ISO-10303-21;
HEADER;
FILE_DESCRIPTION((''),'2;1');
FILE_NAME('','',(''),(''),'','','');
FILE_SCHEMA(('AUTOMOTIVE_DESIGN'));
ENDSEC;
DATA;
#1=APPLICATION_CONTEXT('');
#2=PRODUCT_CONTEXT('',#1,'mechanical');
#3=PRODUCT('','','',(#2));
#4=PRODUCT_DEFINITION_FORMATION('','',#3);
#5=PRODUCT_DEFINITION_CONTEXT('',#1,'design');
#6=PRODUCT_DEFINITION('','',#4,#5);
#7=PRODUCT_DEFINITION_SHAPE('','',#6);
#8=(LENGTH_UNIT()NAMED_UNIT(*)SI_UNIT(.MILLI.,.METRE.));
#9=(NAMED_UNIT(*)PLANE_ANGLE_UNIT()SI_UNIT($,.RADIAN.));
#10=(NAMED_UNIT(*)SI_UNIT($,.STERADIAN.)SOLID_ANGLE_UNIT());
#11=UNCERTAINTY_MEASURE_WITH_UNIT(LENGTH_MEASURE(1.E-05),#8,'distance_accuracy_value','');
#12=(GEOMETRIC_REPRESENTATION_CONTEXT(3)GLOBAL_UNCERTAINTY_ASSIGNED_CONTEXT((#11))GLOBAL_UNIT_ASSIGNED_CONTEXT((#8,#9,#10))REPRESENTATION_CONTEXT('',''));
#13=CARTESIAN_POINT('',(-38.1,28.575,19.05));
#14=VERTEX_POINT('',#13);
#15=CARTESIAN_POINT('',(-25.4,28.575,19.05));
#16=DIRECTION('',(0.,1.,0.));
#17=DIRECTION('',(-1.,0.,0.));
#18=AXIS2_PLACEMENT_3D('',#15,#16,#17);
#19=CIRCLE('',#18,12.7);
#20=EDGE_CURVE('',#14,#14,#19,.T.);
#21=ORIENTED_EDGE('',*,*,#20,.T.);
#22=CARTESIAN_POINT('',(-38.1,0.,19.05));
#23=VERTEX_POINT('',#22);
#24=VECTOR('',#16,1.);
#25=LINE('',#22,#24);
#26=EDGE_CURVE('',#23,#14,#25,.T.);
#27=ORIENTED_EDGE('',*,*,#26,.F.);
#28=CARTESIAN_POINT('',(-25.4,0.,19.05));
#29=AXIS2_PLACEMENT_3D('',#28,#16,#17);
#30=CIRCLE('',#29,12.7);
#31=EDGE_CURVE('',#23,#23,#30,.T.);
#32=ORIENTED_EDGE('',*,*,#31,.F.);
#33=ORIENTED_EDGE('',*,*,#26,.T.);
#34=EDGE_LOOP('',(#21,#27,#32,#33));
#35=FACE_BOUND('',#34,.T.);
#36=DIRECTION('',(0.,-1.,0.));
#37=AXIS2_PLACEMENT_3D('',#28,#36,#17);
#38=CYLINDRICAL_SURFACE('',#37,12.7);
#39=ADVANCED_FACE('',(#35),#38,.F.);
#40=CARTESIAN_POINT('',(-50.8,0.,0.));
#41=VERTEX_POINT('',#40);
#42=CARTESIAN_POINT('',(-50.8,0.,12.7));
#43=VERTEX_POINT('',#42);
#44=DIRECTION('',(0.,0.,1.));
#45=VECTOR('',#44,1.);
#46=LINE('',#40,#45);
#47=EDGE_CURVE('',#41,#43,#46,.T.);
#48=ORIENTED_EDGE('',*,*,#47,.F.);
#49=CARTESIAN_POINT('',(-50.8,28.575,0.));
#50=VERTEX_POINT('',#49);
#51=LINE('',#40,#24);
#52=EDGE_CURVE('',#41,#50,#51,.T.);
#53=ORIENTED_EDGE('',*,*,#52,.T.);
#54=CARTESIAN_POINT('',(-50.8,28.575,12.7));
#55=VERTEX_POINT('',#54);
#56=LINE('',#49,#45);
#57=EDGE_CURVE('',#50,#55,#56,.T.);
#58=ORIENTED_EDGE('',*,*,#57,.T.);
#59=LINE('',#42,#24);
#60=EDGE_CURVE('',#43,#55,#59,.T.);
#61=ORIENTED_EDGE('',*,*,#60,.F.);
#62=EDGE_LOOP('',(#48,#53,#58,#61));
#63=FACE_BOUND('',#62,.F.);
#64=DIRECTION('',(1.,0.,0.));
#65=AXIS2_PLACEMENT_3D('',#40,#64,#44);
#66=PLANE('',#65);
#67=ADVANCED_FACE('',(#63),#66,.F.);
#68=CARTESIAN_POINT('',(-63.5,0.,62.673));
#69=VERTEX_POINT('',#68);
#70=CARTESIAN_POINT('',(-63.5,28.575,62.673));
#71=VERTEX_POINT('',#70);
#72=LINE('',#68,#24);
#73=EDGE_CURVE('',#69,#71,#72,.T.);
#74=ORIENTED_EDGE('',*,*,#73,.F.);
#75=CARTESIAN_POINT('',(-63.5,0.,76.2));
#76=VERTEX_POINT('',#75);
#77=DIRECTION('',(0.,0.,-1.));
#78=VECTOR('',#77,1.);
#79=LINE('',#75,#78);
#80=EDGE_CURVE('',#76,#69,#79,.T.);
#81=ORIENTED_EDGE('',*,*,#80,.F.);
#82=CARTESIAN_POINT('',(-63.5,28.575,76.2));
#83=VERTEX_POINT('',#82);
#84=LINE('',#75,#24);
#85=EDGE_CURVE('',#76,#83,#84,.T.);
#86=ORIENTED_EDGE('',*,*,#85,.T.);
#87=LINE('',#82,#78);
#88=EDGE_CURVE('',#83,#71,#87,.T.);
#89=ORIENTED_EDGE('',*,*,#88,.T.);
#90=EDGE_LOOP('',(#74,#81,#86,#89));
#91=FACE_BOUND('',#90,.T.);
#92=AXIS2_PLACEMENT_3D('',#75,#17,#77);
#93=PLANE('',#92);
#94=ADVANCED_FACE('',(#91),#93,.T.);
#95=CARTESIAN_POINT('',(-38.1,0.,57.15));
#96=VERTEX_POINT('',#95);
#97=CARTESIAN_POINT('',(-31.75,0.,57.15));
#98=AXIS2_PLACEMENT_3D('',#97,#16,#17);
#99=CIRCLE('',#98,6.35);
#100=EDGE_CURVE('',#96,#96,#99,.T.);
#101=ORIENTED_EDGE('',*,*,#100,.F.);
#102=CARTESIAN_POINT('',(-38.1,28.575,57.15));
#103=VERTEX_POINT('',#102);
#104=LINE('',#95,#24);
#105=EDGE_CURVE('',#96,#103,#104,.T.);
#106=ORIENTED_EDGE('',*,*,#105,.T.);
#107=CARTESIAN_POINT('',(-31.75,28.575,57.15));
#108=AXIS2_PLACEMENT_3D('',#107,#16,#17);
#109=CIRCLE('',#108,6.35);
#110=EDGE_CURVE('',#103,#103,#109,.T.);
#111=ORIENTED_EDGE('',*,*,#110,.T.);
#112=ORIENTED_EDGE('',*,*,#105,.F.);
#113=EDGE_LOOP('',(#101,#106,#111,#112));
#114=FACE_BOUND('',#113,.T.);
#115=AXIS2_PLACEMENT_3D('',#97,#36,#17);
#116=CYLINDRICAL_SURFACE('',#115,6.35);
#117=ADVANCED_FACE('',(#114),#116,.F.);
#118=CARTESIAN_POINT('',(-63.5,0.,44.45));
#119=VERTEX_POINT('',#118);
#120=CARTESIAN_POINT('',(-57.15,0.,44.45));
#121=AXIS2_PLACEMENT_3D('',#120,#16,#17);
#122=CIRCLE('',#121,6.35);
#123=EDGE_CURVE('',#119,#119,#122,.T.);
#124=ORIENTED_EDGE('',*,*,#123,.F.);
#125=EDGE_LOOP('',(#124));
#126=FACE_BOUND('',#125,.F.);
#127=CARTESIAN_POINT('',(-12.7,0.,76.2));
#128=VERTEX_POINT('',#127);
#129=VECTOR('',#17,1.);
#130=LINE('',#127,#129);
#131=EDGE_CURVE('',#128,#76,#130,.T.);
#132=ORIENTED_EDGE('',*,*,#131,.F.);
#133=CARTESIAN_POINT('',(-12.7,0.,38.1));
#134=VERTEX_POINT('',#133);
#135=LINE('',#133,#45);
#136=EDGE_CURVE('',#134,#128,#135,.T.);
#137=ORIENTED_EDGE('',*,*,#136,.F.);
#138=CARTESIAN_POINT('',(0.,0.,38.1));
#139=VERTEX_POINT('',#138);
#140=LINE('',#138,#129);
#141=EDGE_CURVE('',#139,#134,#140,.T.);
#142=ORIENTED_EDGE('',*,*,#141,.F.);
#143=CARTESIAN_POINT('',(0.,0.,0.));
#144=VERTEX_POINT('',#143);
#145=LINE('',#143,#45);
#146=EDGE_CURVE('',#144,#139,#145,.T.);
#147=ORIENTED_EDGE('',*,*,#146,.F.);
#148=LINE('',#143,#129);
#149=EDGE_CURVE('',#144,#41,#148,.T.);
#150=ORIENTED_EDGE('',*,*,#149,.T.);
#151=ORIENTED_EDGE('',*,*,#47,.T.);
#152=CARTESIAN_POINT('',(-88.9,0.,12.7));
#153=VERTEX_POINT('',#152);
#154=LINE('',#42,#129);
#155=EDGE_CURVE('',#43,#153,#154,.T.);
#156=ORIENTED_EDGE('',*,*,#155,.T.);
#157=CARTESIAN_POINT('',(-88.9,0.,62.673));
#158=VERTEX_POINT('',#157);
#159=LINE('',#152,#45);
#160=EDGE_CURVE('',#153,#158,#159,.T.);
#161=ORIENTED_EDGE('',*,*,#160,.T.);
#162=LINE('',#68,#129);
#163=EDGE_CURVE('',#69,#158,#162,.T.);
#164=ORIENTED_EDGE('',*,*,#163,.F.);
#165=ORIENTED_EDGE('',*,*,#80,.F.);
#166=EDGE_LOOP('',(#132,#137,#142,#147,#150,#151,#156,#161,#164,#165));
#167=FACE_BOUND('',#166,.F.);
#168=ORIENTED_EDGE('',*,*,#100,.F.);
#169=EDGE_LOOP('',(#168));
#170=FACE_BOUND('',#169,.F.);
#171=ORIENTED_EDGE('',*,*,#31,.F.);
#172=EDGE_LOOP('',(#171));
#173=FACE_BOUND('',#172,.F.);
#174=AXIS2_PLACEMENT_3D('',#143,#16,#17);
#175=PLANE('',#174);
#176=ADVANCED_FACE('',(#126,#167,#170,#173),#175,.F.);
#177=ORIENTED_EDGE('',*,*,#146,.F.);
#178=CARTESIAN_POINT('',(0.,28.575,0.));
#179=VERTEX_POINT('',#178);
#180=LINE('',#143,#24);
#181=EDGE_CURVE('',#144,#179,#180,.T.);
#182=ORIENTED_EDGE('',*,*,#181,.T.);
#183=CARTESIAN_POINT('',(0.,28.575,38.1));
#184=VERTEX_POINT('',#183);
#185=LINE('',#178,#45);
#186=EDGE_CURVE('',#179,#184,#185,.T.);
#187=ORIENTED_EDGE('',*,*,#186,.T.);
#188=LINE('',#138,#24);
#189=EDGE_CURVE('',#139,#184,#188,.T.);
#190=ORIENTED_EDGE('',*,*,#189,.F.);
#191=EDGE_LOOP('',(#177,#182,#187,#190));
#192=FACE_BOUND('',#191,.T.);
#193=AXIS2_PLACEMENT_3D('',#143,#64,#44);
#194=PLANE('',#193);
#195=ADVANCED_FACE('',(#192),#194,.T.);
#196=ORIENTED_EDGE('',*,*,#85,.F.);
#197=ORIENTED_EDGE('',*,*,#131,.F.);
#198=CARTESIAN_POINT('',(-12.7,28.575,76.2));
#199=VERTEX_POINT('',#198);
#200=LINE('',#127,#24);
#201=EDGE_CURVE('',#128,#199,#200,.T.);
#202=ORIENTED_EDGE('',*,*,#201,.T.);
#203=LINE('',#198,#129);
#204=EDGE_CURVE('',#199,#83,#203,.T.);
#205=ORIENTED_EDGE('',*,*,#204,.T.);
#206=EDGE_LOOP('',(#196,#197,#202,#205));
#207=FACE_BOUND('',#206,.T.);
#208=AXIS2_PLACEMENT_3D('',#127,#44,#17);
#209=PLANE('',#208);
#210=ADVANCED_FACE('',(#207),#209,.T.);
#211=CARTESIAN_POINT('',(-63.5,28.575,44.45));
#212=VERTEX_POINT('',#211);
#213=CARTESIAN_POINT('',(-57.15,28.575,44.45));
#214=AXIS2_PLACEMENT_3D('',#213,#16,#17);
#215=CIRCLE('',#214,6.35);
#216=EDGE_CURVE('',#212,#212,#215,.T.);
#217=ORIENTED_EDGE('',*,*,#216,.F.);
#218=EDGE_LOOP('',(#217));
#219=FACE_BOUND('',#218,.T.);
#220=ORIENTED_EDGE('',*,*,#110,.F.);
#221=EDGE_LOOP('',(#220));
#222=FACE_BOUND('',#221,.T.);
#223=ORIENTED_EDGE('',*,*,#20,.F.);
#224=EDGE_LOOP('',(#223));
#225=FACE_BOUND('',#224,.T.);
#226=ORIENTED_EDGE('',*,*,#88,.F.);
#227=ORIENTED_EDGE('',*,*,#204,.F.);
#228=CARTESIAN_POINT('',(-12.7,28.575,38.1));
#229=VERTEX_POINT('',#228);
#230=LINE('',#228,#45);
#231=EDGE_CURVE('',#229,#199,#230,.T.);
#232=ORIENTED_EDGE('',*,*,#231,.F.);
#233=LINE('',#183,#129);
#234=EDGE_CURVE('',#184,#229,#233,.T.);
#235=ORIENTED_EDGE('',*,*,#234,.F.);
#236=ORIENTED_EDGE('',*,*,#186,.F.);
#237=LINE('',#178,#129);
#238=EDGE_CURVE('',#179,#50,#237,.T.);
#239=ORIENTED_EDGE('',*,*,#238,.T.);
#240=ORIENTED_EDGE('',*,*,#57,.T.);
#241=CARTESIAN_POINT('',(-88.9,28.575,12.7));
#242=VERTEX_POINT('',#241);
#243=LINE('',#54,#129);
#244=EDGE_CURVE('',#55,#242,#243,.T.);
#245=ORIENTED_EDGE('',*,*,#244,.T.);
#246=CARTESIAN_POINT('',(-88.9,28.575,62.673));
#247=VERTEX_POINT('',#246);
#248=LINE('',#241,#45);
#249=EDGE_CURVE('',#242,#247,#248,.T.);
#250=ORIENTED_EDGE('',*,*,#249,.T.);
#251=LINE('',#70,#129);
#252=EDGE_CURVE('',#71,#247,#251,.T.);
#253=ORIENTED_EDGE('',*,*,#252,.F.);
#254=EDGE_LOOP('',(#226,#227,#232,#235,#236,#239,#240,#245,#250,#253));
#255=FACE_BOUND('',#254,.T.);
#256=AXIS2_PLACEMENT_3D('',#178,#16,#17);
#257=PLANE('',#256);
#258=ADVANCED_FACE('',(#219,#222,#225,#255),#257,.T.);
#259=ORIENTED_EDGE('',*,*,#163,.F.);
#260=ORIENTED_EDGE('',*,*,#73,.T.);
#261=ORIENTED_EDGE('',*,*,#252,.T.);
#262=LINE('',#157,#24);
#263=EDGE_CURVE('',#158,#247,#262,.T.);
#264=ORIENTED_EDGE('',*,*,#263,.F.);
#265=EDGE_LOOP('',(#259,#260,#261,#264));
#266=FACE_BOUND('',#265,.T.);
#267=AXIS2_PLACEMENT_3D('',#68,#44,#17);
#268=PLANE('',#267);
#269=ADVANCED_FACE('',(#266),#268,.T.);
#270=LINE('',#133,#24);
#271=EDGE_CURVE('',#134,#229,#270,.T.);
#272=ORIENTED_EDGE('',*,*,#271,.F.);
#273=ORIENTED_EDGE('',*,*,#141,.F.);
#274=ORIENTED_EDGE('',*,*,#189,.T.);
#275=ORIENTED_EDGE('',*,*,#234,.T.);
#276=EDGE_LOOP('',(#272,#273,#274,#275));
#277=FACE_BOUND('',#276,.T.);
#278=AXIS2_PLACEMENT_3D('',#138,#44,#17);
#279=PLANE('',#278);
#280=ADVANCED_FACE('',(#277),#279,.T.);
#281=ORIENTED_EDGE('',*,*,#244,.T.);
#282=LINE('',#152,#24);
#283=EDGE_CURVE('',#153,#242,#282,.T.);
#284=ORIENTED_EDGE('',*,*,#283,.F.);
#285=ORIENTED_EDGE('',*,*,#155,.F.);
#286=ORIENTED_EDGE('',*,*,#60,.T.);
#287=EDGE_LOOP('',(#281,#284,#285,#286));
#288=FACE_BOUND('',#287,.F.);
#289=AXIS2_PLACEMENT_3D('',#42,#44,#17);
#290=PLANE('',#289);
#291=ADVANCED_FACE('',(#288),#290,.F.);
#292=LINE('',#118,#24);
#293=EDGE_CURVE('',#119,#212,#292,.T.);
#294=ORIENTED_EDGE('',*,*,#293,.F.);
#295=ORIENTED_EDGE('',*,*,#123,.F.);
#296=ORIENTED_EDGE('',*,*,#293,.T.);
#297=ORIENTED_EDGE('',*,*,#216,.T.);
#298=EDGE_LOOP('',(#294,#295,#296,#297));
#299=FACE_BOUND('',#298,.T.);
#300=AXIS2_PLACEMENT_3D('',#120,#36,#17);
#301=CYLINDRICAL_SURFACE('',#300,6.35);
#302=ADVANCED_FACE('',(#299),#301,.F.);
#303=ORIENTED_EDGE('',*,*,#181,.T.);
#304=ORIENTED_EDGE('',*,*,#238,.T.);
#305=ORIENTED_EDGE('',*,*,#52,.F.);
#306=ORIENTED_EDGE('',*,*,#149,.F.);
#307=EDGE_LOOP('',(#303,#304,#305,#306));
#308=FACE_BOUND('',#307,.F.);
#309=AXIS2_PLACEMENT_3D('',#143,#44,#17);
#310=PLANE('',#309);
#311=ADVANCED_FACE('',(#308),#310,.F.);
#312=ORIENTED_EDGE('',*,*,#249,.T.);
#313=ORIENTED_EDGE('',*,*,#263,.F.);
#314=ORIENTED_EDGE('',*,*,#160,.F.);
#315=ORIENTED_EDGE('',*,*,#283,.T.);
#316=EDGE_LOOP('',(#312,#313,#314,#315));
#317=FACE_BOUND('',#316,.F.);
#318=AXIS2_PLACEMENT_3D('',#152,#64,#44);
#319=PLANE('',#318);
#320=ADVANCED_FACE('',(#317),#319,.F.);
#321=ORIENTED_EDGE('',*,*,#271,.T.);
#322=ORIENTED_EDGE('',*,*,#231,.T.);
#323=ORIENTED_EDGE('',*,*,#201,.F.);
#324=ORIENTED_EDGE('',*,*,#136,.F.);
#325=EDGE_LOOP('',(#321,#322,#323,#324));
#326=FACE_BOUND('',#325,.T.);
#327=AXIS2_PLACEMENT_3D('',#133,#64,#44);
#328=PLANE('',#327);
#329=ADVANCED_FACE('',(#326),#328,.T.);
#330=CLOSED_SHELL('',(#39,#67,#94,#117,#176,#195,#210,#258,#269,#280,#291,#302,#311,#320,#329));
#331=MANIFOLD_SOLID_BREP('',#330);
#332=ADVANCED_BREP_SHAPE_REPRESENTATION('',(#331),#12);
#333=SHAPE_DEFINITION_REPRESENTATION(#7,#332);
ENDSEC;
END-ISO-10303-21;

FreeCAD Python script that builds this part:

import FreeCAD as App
import Part
import Sketcher

V = App.Vector
Q = App.Units.Quantity

doc = App.newDocument("Part")
body = doc.addObject("PartDesign::Body", "Body")

# Sketch on XZ plane
sketch1 = doc.addObject("Sketcher::SketchObject", "Sketch")
body.addObject(sketch1)
sketch1.AttachmentSupport = (doc.XZ_Plane, [""])
sketch1.MapMode = "FlatFace"
sketch1.addGeometry(Part.LineSegment(V(0, 38.1, 0), V(0, 0, 0)), False)
sketch1.addGeometry(Part.LineSegment(V(0, 0, 0), V(-50.8, 0, 0)), False)
sketch1.addGeometry(Part.LineSegment(V(-50.8, 0, 0), V(-50.8, 12.7, 0)), False)
sketch1.addGeometry(Part.LineSegment(V(-50.8, 12.7, 0), V(-88.9, 12.7, 0)), False)
sketch1.addGeometry(Part.LineSegment(V(-88.9, 12.7, 0), V(-88.9, 62.673, 0)), False)
sketch1.addGeometry(Part.LineSegment(V(-88.9, 62.673, 0), V(-63.5, 62.673, 0)), False)
sketch1.addGeometry(Part.LineSegment(V(-63.5, 62.673, 0), V(-63.5, 76.2, 0)), False)
sketch1.addGeometry(Part.LineSegment(V(-63.5, 76.2, 0), V(-12.7, 76.2, 0)), False)
sketch1.addGeometry(Part.LineSegment(V(-12.7, 76.2, 0), V(-12.7, 38.1, 0)), False)
sketch1.addGeometry(Part.LineSegment(V(-12.7, 38.1, 0), V(0, 38.1, 0)), False)
sketch1.addGeometry(Part.Circle(V(-25.4, 19.05, 0), V(0, 0, 1), 12.7), False)
sketch1.addGeometry(Part.Circle(V(-31.75, 57.15, 0), V(0, 0, 1), 6.35), False)
sketch1.addGeometry(Part.Circle(V(-57.15, 44.45, 0), V(0, 0, 1), 6.35), False)
sketch1.addConstraint(Sketcher.Constraint("Coincident", 0, 2, 1, 1))
sketch1.addConstraint(Sketcher.Constraint("Coincident", 1, 2, 2, 1))
sketch1.addConstraint(Sketcher.Constraint("Coincident", 2, 2, 3, 1))
sketch1.addConstraint(Sketcher.Constraint("Coincident", 3, 2, 4, 1))
sketch1.addConstraint(Sketcher.Constraint("Coincident", 4, 2, 5, 1))
sketch1.addConstraint(Sketcher.Constraint("Coincident", 5, 2, 6, 1))
sketch1.addConstraint(Sketcher.Constraint("Coincident", 6, 2, 7, 1))
sketch1.addConstraint(Sketcher.Constraint("Coincident", 7, 2, 8, 1))
sketch1.addConstraint(Sketcher.Constraint("Coincident", 8, 2, 9, 1))
sketch1.addConstraint(Sketcher.Constraint("Coincident", 9, 2, 0, 1))
sketch1.addConstraint(Sketcher.Constraint("Vertical", 0))
sketch1.addConstraint(Sketcher.Constraint("Horizontal", 1))
sketch1.addConstraint(Sketcher.Constraint("Vertical", 2))
sketch1.addConstraint(Sketcher.Constraint("Horizontal", 3))
sketch1.addConstraint(Sketcher.Constraint("Vertical", 4))
sketch1.addConstraint(Sketcher.Constraint("Horizontal", 5))
sketch1.addConstraint(Sketcher.Constraint("Vertical", 6))
sketch1.addConstraint(Sketcher.Constraint("Horizontal", 7))
sketch1.addConstraint(Sketcher.Constraint("Vertical", 8))
sketch1.addConstraint(Sketcher.Constraint("Horizontal", 9))
sketch1.addConstraint(Sketcher.Constraint("Coincident", 0, 2, -1, 1))
sketch1.addConstraint(Sketcher.Constraint("Equal", 11, 12))
sketch1.addConstraint(Sketcher.Constraint("Equal", 1, 7))
sketch1.addConstraint(Sketcher.Constraint("Equal", 3, 0))
sketch1.addConstraint(Sketcher.Constraint("Equal", 9, 2))
sketch1.addConstraint(Sketcher.Constraint("Equal", 0, 8))
sketch1.addConstraint(Sketcher.Constraint("Diameter", 10, Q("1 in")))
sketch1.addConstraint(Sketcher.Constraint("Diameter", 11, Q("0.5 in")))
sketch1.addConstraint(Sketcher.Constraint("DistanceX", 1, 2, 1, 1, Q("2 in")))
sketch1.addConstraint(Sketcher.Constraint("DistanceX", 5, 1, 5, 2, Q("1 in")))
sketch1.addConstraint(Sketcher.Constraint("DistanceX", 3, 2, 3, 1, Q("1.5 in")))
sketch1.addConstraint(Sketcher.Constraint("DistanceX", 10, 3, -1, 1, Q("1 in")))
sketch1.addConstraint(Sketcher.Constraint("DistanceX", 12, 3, 11, 3, Q("1 in")))
sketch1.addConstraint(Sketcher.Constraint("DistanceY", 10, 3, 12, 3, Q("1 in")))
sketch1.addConstraint(Sketcher.Constraint("DistanceY", 10, 3, 11, 3, Q("1.5 in")))
sketch1.addConstraint(Sketcher.Constraint("DistanceY", -1, 1, 10, 3, Q("0.75 in")))
sketch1.addConstraint(Sketcher.Constraint("DistanceX", 11, 3, -1, 1, Q("1.25 in")))
sketch1.addConstraint(Sketcher.Constraint("DistanceY", 4, 1, 4, 2, Q("49.973 mm")))
pad1 = doc.addObject("PartDesign::Pad", "Pad")
body.addObject(pad1)
pad1.Profile = sketch1
pad1.Length = Q("1.125 in")
pad1.Reversed = True

doc.recompute()
